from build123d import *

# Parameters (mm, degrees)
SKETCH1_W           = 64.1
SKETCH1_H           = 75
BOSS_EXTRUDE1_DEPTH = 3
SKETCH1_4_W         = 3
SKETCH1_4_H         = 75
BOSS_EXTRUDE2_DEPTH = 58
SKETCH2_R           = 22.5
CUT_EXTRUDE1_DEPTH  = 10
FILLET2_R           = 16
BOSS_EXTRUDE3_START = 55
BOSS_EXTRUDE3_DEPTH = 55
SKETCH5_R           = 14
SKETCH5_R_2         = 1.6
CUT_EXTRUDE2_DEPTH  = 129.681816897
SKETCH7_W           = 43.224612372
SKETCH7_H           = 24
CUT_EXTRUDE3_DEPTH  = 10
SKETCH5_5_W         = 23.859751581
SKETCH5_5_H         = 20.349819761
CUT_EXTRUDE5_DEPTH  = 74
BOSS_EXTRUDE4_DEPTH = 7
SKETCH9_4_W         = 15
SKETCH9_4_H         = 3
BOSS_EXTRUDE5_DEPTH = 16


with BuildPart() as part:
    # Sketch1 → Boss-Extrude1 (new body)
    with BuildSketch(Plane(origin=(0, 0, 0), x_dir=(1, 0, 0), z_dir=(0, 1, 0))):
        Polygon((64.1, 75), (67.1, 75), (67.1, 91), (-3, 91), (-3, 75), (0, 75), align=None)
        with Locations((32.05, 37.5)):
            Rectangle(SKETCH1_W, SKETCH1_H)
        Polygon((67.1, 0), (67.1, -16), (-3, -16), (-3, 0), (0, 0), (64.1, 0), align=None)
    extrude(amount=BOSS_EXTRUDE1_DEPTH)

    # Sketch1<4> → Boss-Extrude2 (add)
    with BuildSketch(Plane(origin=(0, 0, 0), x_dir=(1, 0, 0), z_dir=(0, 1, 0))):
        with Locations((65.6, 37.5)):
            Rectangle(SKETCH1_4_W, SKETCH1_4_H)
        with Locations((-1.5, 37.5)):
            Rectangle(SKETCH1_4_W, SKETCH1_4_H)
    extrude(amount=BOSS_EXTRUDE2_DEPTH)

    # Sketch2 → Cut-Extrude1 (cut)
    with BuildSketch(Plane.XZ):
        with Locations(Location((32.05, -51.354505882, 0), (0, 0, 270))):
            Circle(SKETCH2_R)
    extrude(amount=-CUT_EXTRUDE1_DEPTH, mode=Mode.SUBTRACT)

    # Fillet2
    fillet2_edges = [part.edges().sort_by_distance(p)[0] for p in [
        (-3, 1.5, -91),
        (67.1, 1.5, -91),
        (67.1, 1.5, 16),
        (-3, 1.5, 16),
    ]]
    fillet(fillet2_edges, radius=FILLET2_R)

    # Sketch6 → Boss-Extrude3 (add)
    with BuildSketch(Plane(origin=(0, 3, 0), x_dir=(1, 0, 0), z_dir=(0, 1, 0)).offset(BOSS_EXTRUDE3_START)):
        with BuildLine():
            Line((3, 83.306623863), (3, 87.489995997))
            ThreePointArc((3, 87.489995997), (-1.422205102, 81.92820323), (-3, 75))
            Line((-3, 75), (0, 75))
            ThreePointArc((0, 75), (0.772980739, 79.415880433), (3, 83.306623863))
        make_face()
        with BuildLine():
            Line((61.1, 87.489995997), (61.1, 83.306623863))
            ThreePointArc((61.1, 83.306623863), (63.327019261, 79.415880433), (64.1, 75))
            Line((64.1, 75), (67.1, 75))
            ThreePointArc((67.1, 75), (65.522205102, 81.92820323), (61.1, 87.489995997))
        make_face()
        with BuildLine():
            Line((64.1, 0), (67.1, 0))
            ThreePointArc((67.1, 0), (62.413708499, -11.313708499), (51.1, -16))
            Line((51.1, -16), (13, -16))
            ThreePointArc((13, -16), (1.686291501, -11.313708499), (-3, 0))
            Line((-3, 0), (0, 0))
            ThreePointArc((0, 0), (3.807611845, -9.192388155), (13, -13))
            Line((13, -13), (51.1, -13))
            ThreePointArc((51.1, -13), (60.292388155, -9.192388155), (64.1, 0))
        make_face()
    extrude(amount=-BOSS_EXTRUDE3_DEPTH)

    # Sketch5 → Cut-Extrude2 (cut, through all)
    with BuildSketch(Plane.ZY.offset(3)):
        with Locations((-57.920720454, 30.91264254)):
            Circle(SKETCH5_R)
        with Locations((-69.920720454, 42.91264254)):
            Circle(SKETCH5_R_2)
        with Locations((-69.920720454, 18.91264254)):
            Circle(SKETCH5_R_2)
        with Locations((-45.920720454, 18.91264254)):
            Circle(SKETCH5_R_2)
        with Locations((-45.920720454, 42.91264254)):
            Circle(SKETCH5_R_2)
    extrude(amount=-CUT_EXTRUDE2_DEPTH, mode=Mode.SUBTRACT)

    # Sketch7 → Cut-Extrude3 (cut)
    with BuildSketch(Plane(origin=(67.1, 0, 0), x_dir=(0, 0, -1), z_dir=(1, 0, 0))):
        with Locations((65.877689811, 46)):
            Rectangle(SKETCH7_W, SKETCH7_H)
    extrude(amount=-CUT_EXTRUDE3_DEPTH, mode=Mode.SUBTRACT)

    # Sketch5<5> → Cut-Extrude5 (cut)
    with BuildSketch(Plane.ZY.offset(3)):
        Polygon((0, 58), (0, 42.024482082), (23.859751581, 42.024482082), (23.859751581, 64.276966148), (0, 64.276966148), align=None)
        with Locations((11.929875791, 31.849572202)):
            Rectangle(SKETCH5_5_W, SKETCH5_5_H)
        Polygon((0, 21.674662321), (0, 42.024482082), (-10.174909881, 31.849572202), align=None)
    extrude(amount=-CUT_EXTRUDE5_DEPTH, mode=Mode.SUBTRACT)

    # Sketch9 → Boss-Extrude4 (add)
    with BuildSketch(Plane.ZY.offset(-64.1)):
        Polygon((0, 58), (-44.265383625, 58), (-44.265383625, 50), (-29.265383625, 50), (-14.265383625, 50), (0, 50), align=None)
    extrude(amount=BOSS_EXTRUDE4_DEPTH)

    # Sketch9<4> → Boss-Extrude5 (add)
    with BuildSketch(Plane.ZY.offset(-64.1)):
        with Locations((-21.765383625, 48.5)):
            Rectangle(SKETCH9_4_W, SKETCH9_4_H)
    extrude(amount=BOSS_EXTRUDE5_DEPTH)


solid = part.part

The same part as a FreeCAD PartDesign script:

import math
import FreeCAD as App
import Part
import Sketcher
from FreeCAD import Vector


def edges_at(feature, points):
    """Names of the edges that pass closest to the given points."""
    edges = feature.Shape.Edges
    near = lambda p: min(range(len(edges)), key=lambda i: edges[i].distToShape(Part.Vertex(*p))[0])
    return sorted({f"Edge{near(p) + 1}" for p in points})


def add_polygon(sketch, points):
    """Adds a closed chain of lines whose ends are joined by coincident constraints."""
    first, n = sketch.GeometryCount, len(points)
    for a, b in zip(points, points[1:] + points[:1]):
        sketch.addGeometry(Part.LineSegment(App.Vector(*a, 0), App.Vector(*b, 0)), False)
    for i in range(n):
        sketch.addConstraint(Sketcher.Constraint("Coincident", first + i, 2, first + (i + 1) % n, 1))

doc = App.newDocument("Part")
body = doc.addObject("PartDesign::Body", "Body")

# Sketch on XZ plane
sketch1 = doc.addObject("Sketcher::SketchObject", "Sketch")
body.addObject(sketch1)
sketch1.AttachmentSupport = (doc.XZ_Plane, [""])
sketch1.MapMode = "FlatFace"
add_polygon(sketch1, [(67.1, -75), (67.1, -91), (-3, -91), (-3, -75), (0, -75), (0, 0), (-3, 0), (-3, 16), (67.1, 16), (67.1, 0), (64.1, 0), (64.1, -75)])  # lines 0-11
sketch1.addConstraint(Sketcher.Constraint("Vertical", 0))
sketch1.addConstraint(Sketcher.Constraint("Horizontal", 1))
sketch1.addConstraint(Sketcher.Constraint("Vertical", 2))
sketch1.addConstraint(Sketcher.Constraint("Horizontal", 3))
sketch1.addConstraint(Sketcher.Constraint("Vertical", 4))
sketch1.addConstraint(Sketcher.Constraint("Horizontal", 5))
sketch1.addConstraint(Sketcher.Constraint("Vertical", 6))
sketch1.addConstraint(Sketcher.Constraint("Horizontal", 7))
sketch1.addConstraint(Sketcher.Constraint("Vertical", 8))
sketch1.addConstraint(Sketcher.Constraint("Horizontal", 9))
sketch1.addConstraint(Sketcher.Constraint("Vertical", 10))
sketch1.addConstraint(Sketcher.Constraint("Horizontal", 11))
sketch1.addConstraint(Sketcher.Constraint("Coincident", 4, 2, -1, 1))
sketch1.addConstraint(Sketcher.Constraint("PointOnObject", 8, 2, -1))
sketch1.addConstraint(Sketcher.Constraint("Horizontal", 3, 2, 10, 2))
sketch1.addConstraint(Sketcher.Constraint("Vertical", 2, 2, 5, 2))
sketch1.addConstraint(Sketcher.Constraint("Vertical", 0, 2, 7, 2))
sketch1.addConstraint(Sketcher.Constraint("Equal", 5, 9))
sketch1.addConstraint(Sketcher.Constraint("Equal", 2, 6))
sketch1.addConstraint(Sketcher.Constraint("DistanceX", 3, 1, 3, 2, 3.0))
sketch1.addConstraint(Sketcher.Constraint("DistanceY", 0, 2, 0, 1, 16.0))
sketch1.addConstraint(Sketcher.Constraint("DistanceY", 4, 1, 4, 2, 75.0))
sketch1.addConstraint(Sketcher.Constraint("DistanceX", 1, 2, 1, 1, 70.1))
pad1 = doc.addObject("PartDesign::Pad", "Pad")
body.addObject(pad1)
pad1.Profile = sketch1
pad1.Length = 3
pad1.Reversed = True

# Sketch on XZ plane
sketch2 = doc.addObject("Sketcher::SketchObject", "Sketch001")
body.addObject(sketch2)
sketch2.AttachmentSupport = (doc.XZ_Plane, [""])
sketch2.MapMode = "FlatFace"
add_polygon(sketch2, [(64.1, -75), (64.1, 0), (67.1, 0), (67.1, -75)])  # lines 0-3
add_polygon(sketch2, [(-3, -75), (-3, 0), (0, 0), (0, -75)])  # lines 4-7
sketch2.addConstraint(Sketcher.Constraint("Vertical", 0))
sketch2.addConstraint(Sketcher.Constraint("Horizontal", 1))
sketch2.addConstraint(Sketcher.Constraint("Vertical", 2))
sketch2.addConstraint(Sketcher.Constraint("Horizontal", 3))
sketch2.addConstraint(Sketcher.Constraint("Vertical", 4))
sketch2.addConstraint(Sketcher.Constraint("Horizontal", 5))
sketch2.addConstraint(Sketcher.Constraint("Vertical", 6))
sketch2.addConstraint(Sketcher.Constraint("Horizontal", 7))
sketch2.addConstraint(Sketcher.Constraint("Coincident", 5, 2, -1, 1))
sketch2.addConstraint(Sketcher.Constraint("PointOnObject", 0, 2, -1))
sketch2.addConstraint(Sketcher.Constraint("Horizontal", 3, 2, 6, 2))
sketch2.addConstraint(Sketcher.Constraint("Equal", 3, 5))
sketch2.addConstraint(Sketcher.Constraint("DistanceX", 1, 1, 1, 2, 3.0))
sketch2.addConstraint(Sketcher.Constraint("DistanceY", 0, 1, 0, 2, 75.0))
sketch2.addConstraint(Sketcher.Constraint("DistanceX", -1, 1, 0, 2, 64.1))
pad2 = doc.addObject("PartDesign::Pad", "Pad001")
body.addObject(pad2)
pad2.Profile = sketch2
pad2.Length = 58
pad2.Reversed = True

# Sketch on XZ plane
sketch3 = doc.addObject("Sketcher::SketchObject", "Sketch002")
body.addObject(sketch3)
sketch3.AttachmentSupport = (doc.XZ_Plane, [""])
sketch3.MapMode = "FlatFace"
sketch3.addGeometry(Part.Circle(Vector(32, -51, 0), Vector(0, 0, 1), 22), False)
sketch3.addConstraint(Sketcher.Constraint("Diameter", 0, 45.0))
sketch3.addConstraint(Sketcher.Constraint("DistanceX", -1, 1, 0, 3, 32.05))
sketch3.addConstraint(Sketcher.Constraint("DistanceY", 0, 3, -1, 1, 51.354506))
pocket1 = doc.addObject("PartDesign::Pocket", "Pocket")
body.addObject(pocket1)
pocket1.Profile = sketch3
pocket1.Length = 10
doc.recompute()

fillet = doc.addObject("PartDesign::Fillet", "Fillet")
body.addObject(fillet)
fillet.Base = (pocket1, edges_at(pocket1, [
    (-3, 1.5, -91),
    (67.1, 1.5, -91),
    (67.1, 1.5, 16),
    (-3, 1.5, 16),
]))
fillet.Radius = 16

# Sketch on XZ plane
sketch4 = doc.addObject("Sketcher::SketchObject", "Sketch003")
body.addObject(sketch4)
sketch4.AttachmentSupport = (doc.XZ_Plane, [""])
sketch4.MapMode = "FlatFace"
sketch4.AttachmentOffset = App.Placement(Vector(0, 0, -58), App.Rotation())
sketch4.addGeometry(Part.LineSegment(Vector(3, -83.3, 0), Vector(3, -87.5, 0)), False)
sketch4.addGeometry(Part.ArcOfCircle(Part.Circle(Vector(13, -75, 0), Vector(0, 0, 1), 16), math.radians(180), math.radians(231)), False)
sketch4.addGeometry(Part.LineSegment(Vector(-3, -75, 0), Vector(0, -75, 0)), False)
sketch4.addGeometry(Part.ArcOfCircle(Part.Circle(Vector(13, -75, 0), Vector(0, 0, 1), 13), math.radians(180), math.radians(220)), False)
sketch4.addGeometry(Part.LineSegment(Vector(61.1, -87.5, 0), Vector(61.1, -83.3, 0)), False)
sketch4.addGeometry(Part.ArcOfCircle(Part.Circle(Vector(51.1, -75, 0), Vector(0, 0, 1), 13), math.radians(-40), math.radians(0)), False)
sketch4.addGeometry(Part.LineSegment(Vector(64.1, -75, 0), Vector(67.1, -75, 0)), False)
sketch4.addGeometry(Part.ArcOfCircle(Part.Circle(Vector(51.1, -75, 0), Vector(0, 0, 1), 16), math.radians(-51), math.radians(0)), False)
sketch4.addGeometry(Part.LineSegment(Vector(67.1, 0, 0), Vector(64.1, 0, 0)), False)
sketch4.addGeometry(Part.ArcOfCircle(Part.Circle(Vector(51.1, 0, 0), Vector(0, 0, 1), 13), math.radians(0), math.radians(90)), False)
sketch4.addGeometry(Part.LineSegment(Vector(51.1, 13, 0), Vector(13, 13, 0)), False)
sketch4.addGeometry(Part.ArcOfCircle(Part.Circle(Vector(13, 0, 0), Vector(0, 0, 1), 13), math.radians(90), math.radians(180)), False)
sketch4.addGeometry(Part.LineSegment(Vector(0, 0, 0), Vector(-3, 0, 0)), False)
sketch4.addGeometry(Part.ArcOfCircle(Part.Circle(Vector(13, 0, 0), Vector(0, 0, 1), 16), math.radians(90), math.radians(180)), False)
sketch4.addGeometry(Part.LineSegment(Vector(13, 16, 0), Vector(51.1, 16, 0)), False)
sketch4.addGeometry(Part.ArcOfCircle(Part.Circle(Vector(51.1, 0, 0), Vector(0, 0, 1), 16), math.radians(0), math.radians(90)), False)
sketch4.addConstraint(Sketcher.Constraint("Coincident", 0, 2, 1, 2))
sketch4.addConstraint(Sketcher.Constraint("Coincident", 1, 1, 2, 1))
sketch4.addConstraint(Sketcher.Constraint("Coincident", 2, 2, 3, 1))
sketch4.addConstraint(Sketcher.Constraint("Coincident", 3, 2, 0, 1))
sketch4.addConstraint(Sketcher.Constraint("Coincident", 4, 2, 5, 1))
sketch4.addConstraint(Sketcher.Constraint("Coincident", 5, 2, 6, 1))
sketch4.addConstraint(Sketcher.Constraint("Coincident", 6, 2, 7, 2))
sketch4.addConstraint(Sketcher.Constraint("Coincident", 7, 1, 4, 1))
sketch4.addConstraint(Sketcher.Constraint("Coincident", 8, 2, 9, 1))
sketch4.addConstraint(Sketcher.Constraint("Tangent", 9, 2, 10, 1))
sketch4.addConstraint(Sketcher.Constraint("Tangent", 10, 2, 11, 1))
sketch4.addConstraint(Sketcher.Constraint("Coincident", 11, 2, 12, 1))
sketch4.addConstraint(Sketcher.Constraint("Coincident", 12, 2, 13, 2))
sketch4.addConstraint(Sketcher.Constraint("Tangent", 13, 1, 14, 1))
sketch4.addConstraint(Sketcher.Constraint("Tangent", 14, 2, 15, 2))
sketch4.addConstraint(Sketcher.Constraint("Coincident", 15, 1, 8, 1))
sketch4.addConstraint(Sketcher.Constraint("Vertical", 0))
sketch4.addConstraint(Sketcher.Constraint("Horizontal", 2))
sketch4.addConstraint(Sketcher.Constraint("Vertical", 4))
sketch4.addConstraint(Sketcher.Constraint("Horizontal", 6))
sketch4.addConstraint(Sketcher.Constraint("Horizontal", 8))
sketch4.addConstraint(Sketcher.Constraint("Horizontal", 10))
sketch4.addConstraint(Sketcher.Constraint("Horizontal", 12))
sketch4.addConstraint(Sketcher.Constraint("Horizontal", 14))
sketch4.addConstraint(Sketcher.Constraint("Coincident", 11, 2, -1, 1))
sketch4.addConstraint(Sketcher.Constraint("Coincident", 3, 3, 1, 3))
sketch4.addConstraint(Sketcher.Constraint("Coincident", 7, 3, 5, 3))
sketch4.addConstraint(Sketcher.Constraint("Coincident", 13, 3, 11, 3))
sketch4.addConstraint(Sketcher.Constraint("Coincident", 15, 3, 9, 3))
sketch4.addConstraint(Sketcher.Constraint("Equal", 3, 5))
sketch4.addConstraint(Sketcher.Constraint("Equal", 1, 7))
sketch4.addConstraint(Sketcher.Constraint("Equal", 5, 9))
sketch4.addConstraint(Sketcher.Constraint("Equal", 9, 11))
sketch4.addConstraint(Sketcher.Constraint("Equal", 7, 13))
sketch4.addConstraint(Sketcher.Constraint("PointOnObject", 9, 3, -1))
sketch4.addConstraint(Sketcher.Constraint("PointOnObject", 2, 2, -2))
sketch4.addConstraint(Sketcher.Constraint("PointOnObject", 8, 2, -1))
sketch4.addConstraint(Sketcher.Constraint("Horizontal", 3, 3, 5, 3))
sketch4.addConstraint(Sketcher.Constraint("Horizontal", 7, 3, 1, 1))
sketch4.addConstraint(Sketcher.Constraint("Horizontal", 3, 2, 4, 2))
sketch4.addConstraint(Sketcher.Constraint("Horizontal", 2, 2, 5, 2))
sketch4.addConstraint(Sketcher.Constraint("Vertical", 7, 3, 9, 3))
sketch4.addConstraint(Sketcher.Constraint("Radius", 1, 16.0))
sketch4.addConstraint(Sketcher.Constraint("Radius", 3, 13.0))
sketch4.addConstraint(Sketcher.Constraint("DistanceX", 10, 2, 10, 1, 38.1))
sketch4.addConstraint(Sketcher.Constraint("DistanceY", 1, 3, -1, 1, 75.0))
sketch4.addConstraint(Sketcher.Constraint("DistanceX", -1, 1, 0, 2, 3.0))
pad3 = doc.addObject("PartDesign::Pad", "Pad002")
body.addObject(pad3)
pad3.Profile = sketch4
pad3.Length = 55

# Sketch on YZ plane
sketch5 = doc.addObject("Sketcher::SketchObject", "Sketch004")
body.addObject(sketch5)
sketch5.AttachmentSupport = (doc.YZ_Plane, [""])
sketch5.MapMode = "FlatFace"
sketch5.AttachmentOffset = App.Placement(Vector(0, 0, -3), App.Rotation())
sketch5.addGeometry(Part.Circle(Vector(30.9, -57.9, 0), Vector(0, 0, 1), 14), False)
sketch5.addGeometry(Part.Circle(Vector(42.9, -69.9, 0), Vector(0, 0, 1), 1.6), False)
sketch5.addGeometry(Part.Circle(Vector(18.9, -69.9, 0), Vector(0, 0, 1), 1.6), False)
sketch5.addGeometry(Part.Circle(Vector(18.9, -45.9, 0), Vector(0, 0, 1), 1.6), False)
sketch5.addGeometry(Part.Circle(Vector(42.9, -45.9, 0), Vector(0, 0, 1), 1.6), False)
sketch5.addConstraint(Sketcher.Constraint("Equal", 1, 2))
sketch5.addConstraint(Sketcher.Constraint("Equal", 2, 3))
sketch5.addConstraint(Sketcher.Constraint("Equal", 3, 4))
sketch5.addConstraint(Sketcher.Constraint("Horizontal", 1, 3, 2, 3))
sketch5.addConstraint(Sketcher.Constraint("Horizontal", 3, 3, 4, 3))
sketch5.addConstraint(Sketcher.Constraint("Vertical", 2, 3, 3, 3))
sketch5.addConstraint(Sketcher.Constraint("Vertical", 1, 3, 4, 3))
sketch5.addConstraint(Sketcher.Constraint("Diameter", 0, 28.0))
sketch5.addConstraint(Sketcher.Constraint("Diameter", 1, 3.2))
sketch5.addConstraint(Sketcher.Constraint("DistanceX", 0, 3, 1, 3, 12.0))
sketch5.addConstraint(Sketcher.Constraint("DistanceY", 1, 3, 0, 3, 12.0))
sketch5.addConstraint(Sketcher.Constraint("DistanceX", 2, 3, 0, 3, 12.0))
sketch5.addConstraint(Sketcher.Constraint("DistanceY", 0, 3, 3, 3, 12.0))
sketch5.addConstraint(Sketcher.Constraint("DistanceY", 0, 3, -1, 1, 57.92072))
sketch5.addConstraint(Sketcher.Constraint("DistanceX", -1, 1, 0, 3, 30.912643))
pocket2 = doc.addObject("PartDesign::Pocket", "Pocket001")
body.addObject(pocket2)
pocket2.Profile = sketch5
pocket2.Type = "ThroughAll"
pocket2.Reversed = True

# Sketch on YZ plane
sketch6 = doc.addObject("Sketcher::SketchObject", "Sketch005")
body.addObject(sketch6)
sketch6.AttachmentSupport = (doc.YZ_Plane, [""])
sketch6.MapMode = "FlatFace"
sketch6.AttachmentOffset = App.Placement(Vector(0, 0, 67.1), App.Rotation())
add_polygon(sketch6, [(58, -44), (34, -44), (34, -87), (58, -87)])  # lines 0-3
sketch6.addConstraint(Sketcher.Constraint("Horizontal", 0))
sketch6.addConstraint(Sketcher.Constraint("Vertical", 1))
sketch6.addConstraint(Sketcher.Constraint("Horizontal", 2))
sketch6.addConstraint(Sketcher.Constraint("Vertical", 3))
sketch6.addConstraint(Sketcher.Constraint("DistanceX", 0, 2, 0, 1, 24.0))
sketch6.addConstraint(Sketcher.Constraint("DistanceX", -1, 1, 0, 2, 34.0))
sketch6.addConstraint(Sketcher.Constraint("DistanceY", 1, 2, 1, 1, 43.224612))
sketch6.addConstraint(Sketcher.Constraint("DistanceY", 0, 2, -1, 1, 44.265384))
pocket3 = doc.addObject("PartDesign::Pocket", "Pocket002")
body.addObject(pocket3)
pocket3.Profile = sketch6
pocket3.Length = 10

# Sketch on YZ plane
sketch7 = doc.addObject("Sketcher::SketchObject", "Sketch006")
body.addObject(sketch7)
sketch7.AttachmentSupport = (doc.YZ_Plane, [""])
sketch7.MapMode = "FlatFace"
sketch7.AttachmentOffset = App.Placement(Vector(0, 0, -3), App.Rotation())
add_polygon(sketch7, [(42, 24), (64, 24), (64, 0), (42, 0), (32, -10), (22, 0), (22, 24)])  # lines 0-6
sketch7.addConstraint(Sketcher.Constraint("Horizontal", 0))
sketch7.addConstraint(Sketcher.Constraint("Vertical", 1))
sketch7.addConstraint(Sketcher.Constraint("Horizontal", 2))
sketch7.addConstraint(Sketcher.Constraint("Vertical", 5))
sketch7.addConstraint(Sketcher.Constraint("Horizontal", 6))
sketch7.addConstraint(Sketcher.Constraint("PointOnObject", 1, 2, -1))
sketch7.addConstraint(Sketcher.Constraint("PointOnObject", 4, 2, -1))
sketch7.addConstraint(Sketcher.Constraint("Perpendicular", 3, 4))
sketch7.addConstraint(Sketcher.Constraint("Vertical", 2, 2, 6, 2))
sketch7.addConstraint(Sketcher.Constraint("Equal", 3, 4))
sketch7.addConstraint(Sketcher.Constraint("DistanceX", 6, 1, 6, 2, 20.34982))
sketch7.addConstraint(Sketcher.Constraint("DistanceY", 1, 2, 1, 1, 23.859752))
sketch7.addConstraint(Sketcher.Constraint("DistanceX", 0, 1, 0, 2, 22.252484))
sketch7.addConstraint(Sketcher.Constraint("DistanceX", -1, 1, 0, 2, 64.276966))
pocket4 = doc.addObject("PartDesign::Pocket", "Pocket003")
body.addObject(pocket4)
pocket4.Profile = sketch7
pocket4.Length = 74
pocket4.Reversed = True

# Sketch on YZ plane
sketch8 = doc.addObject("Sketcher::SketchObject", "Sketch007")
body.addObject(sketch8)
sketch8.AttachmentSupport = (doc.YZ_Plane, [""])
sketch8.MapMode = "FlatFace"
sketch8.AttachmentOffset = App.Placement(Vector(0, 0, 64.1), App.Rotation())
add_polygon(sketch8, [(58, 0), (58, -44), (50, -44), (50, 0)])  # lines 0-3
sketch8.addConstraint(Sketcher.Constraint("Vertical", 0))
sketch8.addConstraint(Sketcher.Constraint("Horizontal", 1))
sketch8.addConstraint(Sketcher.Constraint("Vertical", 2))
sketch8.addConstraint(Sketcher.Constraint("Horizontal", 3))
sketch8.addConstraint(Sketcher.Constraint("PointOnObject", 2, 2, -1))
sketch8.addConstraint(Sketcher.Constraint("DistanceX", 1, 2, 1, 1, 8.0))
sketch8.addConstraint(Sketcher.Constraint("DistanceX", -1, 1, 0, 2, 58.0))
sketch8.addConstraint(Sketcher.Constraint("DistanceY", 0, 2, 0, 1, 44.265384))
pad4 = doc.addObject("PartDesign::Pad", "Pad003")
body.addObject(pad4)
pad4.Profile = sketch8
pad4.Length = 7
pad4.Reversed = True

# Sketch on YZ plane
sketch9 = doc.addObject("Sketcher::SketchObject", "Sketch008")
body.addObject(sketch9)
sketch9.AttachmentSupport = (doc.YZ_Plane, [""])
sketch9.MapMode = "FlatFace"
sketch9.AttachmentOffset = App.Placement(Vector(0, 0, 64.1), App.Rotation())
add_polygon(sketch9, [(50, -29.3), (47, -29.3), (47, -14.3), (50, -14.3)])  # lines 0-3
sketch9.addConstraint(Sketcher.Constraint("Horizontal", 0))
sketch9.addConstraint(Sketcher.Constraint("Vertical", 1))
sketch9.addConstraint(Sketcher.Constraint("Horizontal", 2))
sketch9.addConstraint(Sketcher.Constraint("Vertical", 3))
sketch9.addConstraint(Sketcher.Constraint("DistanceX", 0, 2, 0, 1, 3.0))
sketch9.addConstraint(Sketcher.Constraint("DistanceY", 1, 1, 1, 2, 15.0))
sketch9.addConstraint(Sketcher.Constraint("DistanceX", -1, 1, 0, 2, 47.0))
sketch9.addConstraint(Sketcher.Constraint("DistanceY", 0, 2, -1, 1, 29.265384))
pad5 = doc.addObject("PartDesign::Pad", "Pad004")
body.addObject(pad5)
pad5.Profile = sketch9
pad5.Length = 16
pad5.Reversed = True

doc.recompute()
